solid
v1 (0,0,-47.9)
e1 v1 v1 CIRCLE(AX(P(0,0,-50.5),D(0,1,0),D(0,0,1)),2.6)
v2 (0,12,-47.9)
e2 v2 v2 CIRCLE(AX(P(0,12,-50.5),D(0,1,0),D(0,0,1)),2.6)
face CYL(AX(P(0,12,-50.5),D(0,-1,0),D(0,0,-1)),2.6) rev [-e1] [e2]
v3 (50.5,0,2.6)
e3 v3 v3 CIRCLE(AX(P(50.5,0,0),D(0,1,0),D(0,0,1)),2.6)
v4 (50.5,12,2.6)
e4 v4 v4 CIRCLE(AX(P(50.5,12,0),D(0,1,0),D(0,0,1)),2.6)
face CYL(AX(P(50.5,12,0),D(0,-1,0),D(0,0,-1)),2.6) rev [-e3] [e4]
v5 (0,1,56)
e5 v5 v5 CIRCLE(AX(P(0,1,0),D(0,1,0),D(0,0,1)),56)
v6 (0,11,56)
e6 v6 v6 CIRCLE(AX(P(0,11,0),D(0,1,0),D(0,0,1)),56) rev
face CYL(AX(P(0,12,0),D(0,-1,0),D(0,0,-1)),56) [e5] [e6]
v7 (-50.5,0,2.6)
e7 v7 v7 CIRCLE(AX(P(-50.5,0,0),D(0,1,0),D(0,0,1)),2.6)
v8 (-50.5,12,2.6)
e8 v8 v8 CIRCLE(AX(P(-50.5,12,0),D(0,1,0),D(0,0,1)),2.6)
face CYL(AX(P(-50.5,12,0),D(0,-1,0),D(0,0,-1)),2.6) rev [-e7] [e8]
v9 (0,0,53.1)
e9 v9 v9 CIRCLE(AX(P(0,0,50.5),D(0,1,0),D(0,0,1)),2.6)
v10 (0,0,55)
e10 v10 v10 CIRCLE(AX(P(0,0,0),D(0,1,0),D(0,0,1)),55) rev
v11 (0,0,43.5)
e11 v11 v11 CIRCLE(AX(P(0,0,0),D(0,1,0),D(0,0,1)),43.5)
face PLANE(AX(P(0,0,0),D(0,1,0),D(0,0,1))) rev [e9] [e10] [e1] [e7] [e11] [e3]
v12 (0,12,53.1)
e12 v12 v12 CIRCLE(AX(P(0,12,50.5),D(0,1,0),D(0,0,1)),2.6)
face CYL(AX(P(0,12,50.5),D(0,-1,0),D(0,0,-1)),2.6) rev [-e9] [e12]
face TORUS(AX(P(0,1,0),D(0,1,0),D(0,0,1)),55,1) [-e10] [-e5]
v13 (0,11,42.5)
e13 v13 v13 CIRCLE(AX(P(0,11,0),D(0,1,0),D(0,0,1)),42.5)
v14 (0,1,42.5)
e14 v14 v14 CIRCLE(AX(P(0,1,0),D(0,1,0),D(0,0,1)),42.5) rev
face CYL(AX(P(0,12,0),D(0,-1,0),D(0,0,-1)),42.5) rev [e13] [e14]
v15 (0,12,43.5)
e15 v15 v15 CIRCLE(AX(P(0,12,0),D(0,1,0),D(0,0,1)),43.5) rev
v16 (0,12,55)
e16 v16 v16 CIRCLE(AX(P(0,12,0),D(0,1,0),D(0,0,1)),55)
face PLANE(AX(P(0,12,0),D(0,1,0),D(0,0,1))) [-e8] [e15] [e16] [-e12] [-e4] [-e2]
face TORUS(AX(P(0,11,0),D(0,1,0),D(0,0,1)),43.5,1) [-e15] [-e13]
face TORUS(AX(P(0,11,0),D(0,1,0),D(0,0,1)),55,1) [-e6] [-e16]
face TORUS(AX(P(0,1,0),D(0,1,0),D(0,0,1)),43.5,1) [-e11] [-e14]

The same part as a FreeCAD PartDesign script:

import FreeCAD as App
import Part
import Sketcher
from FreeCAD import Vector


def edges_at(feature, points):
    """Names of the edges that pass closest to the given points."""
    edges = feature.Shape.Edges
    near = lambda p: min(range(len(edges)), key=lambda i: edges[i].distToShape(Part.Vertex(*p))[0])
    return sorted({f"Edge{near(p) + 1}" for p in points})

doc = App.newDocument("Part")
body = doc.addObject("PartDesign::Body", "Body")

sketch1 = body.newObject("Sketcher::SketchObject", "Sketch")
sketch1.AttachmentSupport = (doc.getObject("XZ_Plane"), [""])
sketch1.MapMode = "FlatFace"
sketch1.addGeometry([
    Part.Circle(Vector(0, 0, 0), Vector(0, 0, 1), 56),
    Part.Circle(Vector(0, -50.5, 0), Vector(0, 0, 1), 2.6),
    Part.Circle(Vector(-50.5, 0, 0), Vector(0, 0, 1), 2.6),
    Part.Circle(Vector(50.5, 0, 0), Vector(0, 0, 1), 2.6),
    Part.Circle(Vector(0, 0, 0), Vector(0, 0, 1), 42.5),
    Part.Circle(Vector(0, 50.5, 0), Vector(0, 0, 1), 2.6),
], False)
sketch1.addConstraint([
    Sketcher.Constraint("Coincident", 0, 3, -1, 1),
    Sketcher.Constraint("Coincident", 4, 3, -1, 1),
    Sketcher.Constraint("Equal", 1, 2),
    Sketcher.Constraint("Equal", 2, 3),
    Sketcher.Constraint("Equal", 3, 5),
    Sketcher.Constraint("Symmetric", 2, 3, 3, 3, -1, 1),
    Sketcher.Constraint("Symmetric", 1, 3, 5, 3, -1, 1),
    Sketcher.Constraint("PointOnObject", 1, 3, -2),
    Sketcher.Constraint("PointOnObject", 2, 3, -1),
    Sketcher.Constraint("Diameter", 0, 112.0),
    Sketcher.Constraint("Diameter", 4, 85.0),
    Sketcher.Constraint("Diameter", 1, 5.2),
    Sketcher.Constraint("DistanceX", 2, 3, 3, 3, 101.0),
    Sketcher.Constraint("DistanceY", 1, 3, 5, 3, 101.0),
])
pad1 = body.newObject("PartDesign::Pad", "Pad")
pad1.Profile = sketch1
pad1.Length = 12
pad1.Reversed = True
doc.recompute()

fillet = body.newObject("PartDesign::Fillet", "Fillet")
fillet.Base = (pad1, edges_at(pad1, [
    (0, 0, -56),
    (0, 12, -56),
    (0, 0, -42.5),
    (0, 12, -42.5),
]))
fillet.Radius = 1

doc.recompute()
